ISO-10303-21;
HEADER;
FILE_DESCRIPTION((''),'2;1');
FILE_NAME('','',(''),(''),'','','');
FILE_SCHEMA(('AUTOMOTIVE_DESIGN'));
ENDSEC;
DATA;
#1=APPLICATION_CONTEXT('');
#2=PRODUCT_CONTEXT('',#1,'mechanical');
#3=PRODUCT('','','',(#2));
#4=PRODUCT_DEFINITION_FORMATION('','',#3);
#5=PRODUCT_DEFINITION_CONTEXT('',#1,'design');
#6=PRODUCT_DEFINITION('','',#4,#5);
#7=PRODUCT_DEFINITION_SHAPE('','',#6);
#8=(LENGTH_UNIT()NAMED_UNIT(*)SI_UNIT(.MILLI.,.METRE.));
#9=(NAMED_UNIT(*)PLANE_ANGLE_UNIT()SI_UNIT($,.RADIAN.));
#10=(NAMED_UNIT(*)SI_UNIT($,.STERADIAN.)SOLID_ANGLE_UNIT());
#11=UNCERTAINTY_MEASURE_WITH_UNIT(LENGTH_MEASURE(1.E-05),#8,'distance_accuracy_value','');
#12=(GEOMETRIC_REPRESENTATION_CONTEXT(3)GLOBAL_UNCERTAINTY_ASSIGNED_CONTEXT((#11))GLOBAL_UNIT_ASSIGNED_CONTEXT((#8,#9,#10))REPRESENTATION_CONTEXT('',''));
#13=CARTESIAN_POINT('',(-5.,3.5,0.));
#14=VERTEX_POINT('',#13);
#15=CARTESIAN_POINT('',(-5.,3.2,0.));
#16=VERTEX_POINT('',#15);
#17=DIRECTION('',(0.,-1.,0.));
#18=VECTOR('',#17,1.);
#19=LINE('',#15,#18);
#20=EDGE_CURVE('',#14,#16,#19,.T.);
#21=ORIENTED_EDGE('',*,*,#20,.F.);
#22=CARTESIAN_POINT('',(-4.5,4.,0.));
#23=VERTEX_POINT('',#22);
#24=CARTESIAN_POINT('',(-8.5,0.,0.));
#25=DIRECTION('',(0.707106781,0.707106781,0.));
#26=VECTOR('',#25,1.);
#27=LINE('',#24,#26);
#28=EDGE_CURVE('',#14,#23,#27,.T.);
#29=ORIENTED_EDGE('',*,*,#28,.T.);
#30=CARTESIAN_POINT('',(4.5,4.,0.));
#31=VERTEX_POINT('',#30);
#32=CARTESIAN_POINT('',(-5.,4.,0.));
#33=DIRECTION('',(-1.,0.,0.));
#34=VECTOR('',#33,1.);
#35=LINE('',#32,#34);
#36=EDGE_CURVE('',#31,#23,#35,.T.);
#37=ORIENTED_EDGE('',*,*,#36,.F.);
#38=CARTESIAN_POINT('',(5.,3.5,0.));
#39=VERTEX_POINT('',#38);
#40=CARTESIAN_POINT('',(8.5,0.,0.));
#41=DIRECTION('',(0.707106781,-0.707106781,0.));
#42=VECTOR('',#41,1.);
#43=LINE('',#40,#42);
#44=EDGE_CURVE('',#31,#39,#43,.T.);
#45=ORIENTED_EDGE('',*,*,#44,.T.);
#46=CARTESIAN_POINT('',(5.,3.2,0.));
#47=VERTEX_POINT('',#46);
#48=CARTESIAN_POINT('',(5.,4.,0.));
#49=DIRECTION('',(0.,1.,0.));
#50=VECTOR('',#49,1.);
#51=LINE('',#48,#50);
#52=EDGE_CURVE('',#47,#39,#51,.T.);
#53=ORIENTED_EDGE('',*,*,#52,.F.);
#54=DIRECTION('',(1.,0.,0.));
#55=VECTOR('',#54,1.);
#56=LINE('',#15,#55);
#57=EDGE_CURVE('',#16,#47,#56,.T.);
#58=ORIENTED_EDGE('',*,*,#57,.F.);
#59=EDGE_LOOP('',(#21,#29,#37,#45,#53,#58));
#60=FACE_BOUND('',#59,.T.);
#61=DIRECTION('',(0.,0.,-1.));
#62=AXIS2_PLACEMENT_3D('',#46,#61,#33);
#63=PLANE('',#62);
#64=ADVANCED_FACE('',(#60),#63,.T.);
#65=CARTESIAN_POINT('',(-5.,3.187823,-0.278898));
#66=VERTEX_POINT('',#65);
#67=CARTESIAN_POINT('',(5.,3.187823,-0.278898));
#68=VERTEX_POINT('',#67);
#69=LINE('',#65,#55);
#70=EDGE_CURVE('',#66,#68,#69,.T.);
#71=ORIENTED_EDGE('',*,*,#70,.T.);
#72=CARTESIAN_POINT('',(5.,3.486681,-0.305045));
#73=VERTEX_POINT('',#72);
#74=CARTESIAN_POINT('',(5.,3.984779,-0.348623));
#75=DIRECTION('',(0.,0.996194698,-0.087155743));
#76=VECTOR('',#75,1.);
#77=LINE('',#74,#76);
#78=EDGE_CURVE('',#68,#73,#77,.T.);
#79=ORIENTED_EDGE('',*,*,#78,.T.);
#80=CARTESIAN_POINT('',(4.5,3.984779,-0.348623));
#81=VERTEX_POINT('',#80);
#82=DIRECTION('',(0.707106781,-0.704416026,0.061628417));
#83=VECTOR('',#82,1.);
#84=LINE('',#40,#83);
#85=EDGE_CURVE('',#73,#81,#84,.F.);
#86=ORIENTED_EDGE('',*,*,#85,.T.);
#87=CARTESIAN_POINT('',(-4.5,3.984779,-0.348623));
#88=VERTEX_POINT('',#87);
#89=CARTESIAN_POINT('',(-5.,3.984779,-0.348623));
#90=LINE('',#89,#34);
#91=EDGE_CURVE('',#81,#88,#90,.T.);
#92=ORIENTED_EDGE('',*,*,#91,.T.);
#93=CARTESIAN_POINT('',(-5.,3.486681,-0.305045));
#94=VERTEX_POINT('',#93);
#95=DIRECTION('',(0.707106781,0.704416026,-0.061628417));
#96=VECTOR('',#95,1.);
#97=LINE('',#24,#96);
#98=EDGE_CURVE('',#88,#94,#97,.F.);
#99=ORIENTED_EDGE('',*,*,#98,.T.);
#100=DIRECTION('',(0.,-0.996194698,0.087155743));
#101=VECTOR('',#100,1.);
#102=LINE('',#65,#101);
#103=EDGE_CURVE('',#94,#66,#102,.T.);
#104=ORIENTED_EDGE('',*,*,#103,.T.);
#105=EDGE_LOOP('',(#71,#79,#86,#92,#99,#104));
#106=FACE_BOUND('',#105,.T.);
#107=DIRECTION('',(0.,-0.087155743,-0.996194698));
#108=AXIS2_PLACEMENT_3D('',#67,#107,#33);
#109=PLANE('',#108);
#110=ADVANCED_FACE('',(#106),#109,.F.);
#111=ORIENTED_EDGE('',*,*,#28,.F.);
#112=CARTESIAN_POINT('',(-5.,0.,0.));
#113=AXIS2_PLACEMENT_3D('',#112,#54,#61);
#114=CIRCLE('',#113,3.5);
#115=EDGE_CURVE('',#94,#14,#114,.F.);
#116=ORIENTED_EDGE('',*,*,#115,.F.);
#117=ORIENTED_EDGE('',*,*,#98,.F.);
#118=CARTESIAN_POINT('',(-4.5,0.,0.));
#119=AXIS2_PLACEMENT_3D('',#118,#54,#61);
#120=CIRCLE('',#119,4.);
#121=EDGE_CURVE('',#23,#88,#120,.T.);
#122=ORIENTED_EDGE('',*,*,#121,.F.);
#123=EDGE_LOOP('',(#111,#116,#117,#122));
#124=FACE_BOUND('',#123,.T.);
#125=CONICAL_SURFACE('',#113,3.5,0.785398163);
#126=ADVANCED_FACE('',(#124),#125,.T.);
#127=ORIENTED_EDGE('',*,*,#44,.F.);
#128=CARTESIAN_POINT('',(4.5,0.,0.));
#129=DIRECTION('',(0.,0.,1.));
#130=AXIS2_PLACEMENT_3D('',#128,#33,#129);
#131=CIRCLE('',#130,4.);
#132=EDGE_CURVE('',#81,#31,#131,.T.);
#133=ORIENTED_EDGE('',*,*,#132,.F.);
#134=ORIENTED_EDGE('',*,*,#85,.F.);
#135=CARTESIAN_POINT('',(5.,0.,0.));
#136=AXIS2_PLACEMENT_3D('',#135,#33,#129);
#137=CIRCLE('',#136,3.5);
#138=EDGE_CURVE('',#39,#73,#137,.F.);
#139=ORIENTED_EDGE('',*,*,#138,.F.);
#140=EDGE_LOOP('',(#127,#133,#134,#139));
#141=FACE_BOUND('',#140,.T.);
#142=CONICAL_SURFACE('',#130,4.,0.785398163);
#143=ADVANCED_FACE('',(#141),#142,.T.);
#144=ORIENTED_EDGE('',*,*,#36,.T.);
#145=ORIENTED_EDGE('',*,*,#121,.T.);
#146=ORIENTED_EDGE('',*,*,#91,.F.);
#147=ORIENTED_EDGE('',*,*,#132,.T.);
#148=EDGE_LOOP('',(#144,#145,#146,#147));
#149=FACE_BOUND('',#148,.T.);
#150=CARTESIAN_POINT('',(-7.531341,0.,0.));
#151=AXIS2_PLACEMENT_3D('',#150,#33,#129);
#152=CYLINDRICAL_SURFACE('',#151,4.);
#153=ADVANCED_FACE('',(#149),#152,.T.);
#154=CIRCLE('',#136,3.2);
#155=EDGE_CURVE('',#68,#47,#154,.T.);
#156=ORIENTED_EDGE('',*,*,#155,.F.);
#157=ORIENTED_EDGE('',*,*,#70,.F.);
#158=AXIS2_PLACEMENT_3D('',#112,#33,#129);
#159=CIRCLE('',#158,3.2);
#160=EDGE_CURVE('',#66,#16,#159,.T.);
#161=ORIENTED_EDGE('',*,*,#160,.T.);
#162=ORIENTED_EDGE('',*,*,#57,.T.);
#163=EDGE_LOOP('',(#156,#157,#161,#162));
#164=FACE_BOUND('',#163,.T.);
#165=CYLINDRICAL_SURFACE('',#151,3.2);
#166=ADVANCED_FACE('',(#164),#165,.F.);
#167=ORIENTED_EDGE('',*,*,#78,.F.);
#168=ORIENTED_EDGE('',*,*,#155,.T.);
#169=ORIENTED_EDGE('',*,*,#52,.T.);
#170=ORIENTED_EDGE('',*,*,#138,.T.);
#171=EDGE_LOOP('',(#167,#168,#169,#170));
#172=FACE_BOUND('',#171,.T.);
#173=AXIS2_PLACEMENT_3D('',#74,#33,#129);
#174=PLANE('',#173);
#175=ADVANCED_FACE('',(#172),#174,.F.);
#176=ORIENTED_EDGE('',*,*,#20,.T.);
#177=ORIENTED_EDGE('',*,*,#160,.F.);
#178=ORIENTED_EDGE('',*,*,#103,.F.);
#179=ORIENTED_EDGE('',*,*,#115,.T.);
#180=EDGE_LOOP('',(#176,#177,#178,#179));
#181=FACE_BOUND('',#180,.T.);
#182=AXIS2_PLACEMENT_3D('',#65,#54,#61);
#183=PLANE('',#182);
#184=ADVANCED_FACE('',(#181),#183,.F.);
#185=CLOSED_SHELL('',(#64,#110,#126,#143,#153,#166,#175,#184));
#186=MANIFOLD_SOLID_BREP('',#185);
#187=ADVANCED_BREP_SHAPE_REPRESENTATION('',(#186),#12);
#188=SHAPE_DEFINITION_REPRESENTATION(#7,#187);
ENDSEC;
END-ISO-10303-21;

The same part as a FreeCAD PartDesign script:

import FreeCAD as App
import Part
import Sketcher
from FreeCAD import Vector
Q = App.Units.Quantity


def edges_at(feature, points):
    """Names of the edges that pass closest to the given points."""
    edges = feature.Shape.Edges
    near = lambda p: min(range(len(edges)), key=lambda i: edges[i].distToShape(Part.Vertex(*p))[0])
    return sorted({f"Edge{near(p) + 1}" for p in points})


def add_polygon(sketch, points):
    """Adds a closed chain of lines whose ends are joined by coincident constraints."""
    first, n = sketch.GeometryCount, len(points)
    for a, b in zip(points, points[1:] + points[:1]):
        sketch.addGeometry(Part.LineSegment(App.Vector(*a, 0), App.Vector(*b, 0)), False)
    for i in range(n):
        sketch.addConstraint(Sketcher.Constraint("Coincident", first + i, 2, first + (i + 1) % n, 1))

doc = App.newDocument("Part")
body = doc.addObject("PartDesign::Body", "Body")

sketch1 = body.newObject("Sketcher::SketchObject", "Sketch")
sketch1.AttachmentSupport = (doc.getObject("XY_Plane"), [""])
sketch1.MapMode = "FlatFace"
add_polygon(sketch1, [(-5, 4), (-5, 3.2), (5, 3.2), (5, 4)])
sketch1.addConstraint(Sketcher.Constraint("Vertical", 0))
sketch1.addConstraint(Sketcher.Constraint("Horizontal", 1))
sketch1.addConstraint(Sketcher.Constraint("Vertical", 2))
sketch1.addConstraint(Sketcher.Constraint("Horizontal", 3))
sketch1.addConstraint(Sketcher.Constraint("DistanceX", 1, 1, 1, 2, Q("10 mm")))
sketch1.addConstraint(Sketcher.Constraint("DistanceY", 0, 2, 0, 1, Q("0.8 mm")))
sketch1.addConstraint(Sketcher.Constraint("DistanceX", 0, 2, -1, 1, Q("5 mm")))
sketch1.addConstraint(Sketcher.Constraint("DistanceY", -1, 1, 2, 2, Q("4 mm")))
revolution = body.newObject("PartDesign::Revolution", "Revolution")
revolution.Profile = sketch1
revolution.ReferenceAxis = (sketch1, ["H_Axis"])
revolution.Angle = 355
doc.recompute()

chamfer = body.newObject("PartDesign::Chamfer", "Chamfer")
chamfer.Base = (revolution, edges_at(revolution, [(5, -3.996, 0.174), (-5, -3.996, 0.174)]))
chamfer.Size = 0.5

doc.recompute()
